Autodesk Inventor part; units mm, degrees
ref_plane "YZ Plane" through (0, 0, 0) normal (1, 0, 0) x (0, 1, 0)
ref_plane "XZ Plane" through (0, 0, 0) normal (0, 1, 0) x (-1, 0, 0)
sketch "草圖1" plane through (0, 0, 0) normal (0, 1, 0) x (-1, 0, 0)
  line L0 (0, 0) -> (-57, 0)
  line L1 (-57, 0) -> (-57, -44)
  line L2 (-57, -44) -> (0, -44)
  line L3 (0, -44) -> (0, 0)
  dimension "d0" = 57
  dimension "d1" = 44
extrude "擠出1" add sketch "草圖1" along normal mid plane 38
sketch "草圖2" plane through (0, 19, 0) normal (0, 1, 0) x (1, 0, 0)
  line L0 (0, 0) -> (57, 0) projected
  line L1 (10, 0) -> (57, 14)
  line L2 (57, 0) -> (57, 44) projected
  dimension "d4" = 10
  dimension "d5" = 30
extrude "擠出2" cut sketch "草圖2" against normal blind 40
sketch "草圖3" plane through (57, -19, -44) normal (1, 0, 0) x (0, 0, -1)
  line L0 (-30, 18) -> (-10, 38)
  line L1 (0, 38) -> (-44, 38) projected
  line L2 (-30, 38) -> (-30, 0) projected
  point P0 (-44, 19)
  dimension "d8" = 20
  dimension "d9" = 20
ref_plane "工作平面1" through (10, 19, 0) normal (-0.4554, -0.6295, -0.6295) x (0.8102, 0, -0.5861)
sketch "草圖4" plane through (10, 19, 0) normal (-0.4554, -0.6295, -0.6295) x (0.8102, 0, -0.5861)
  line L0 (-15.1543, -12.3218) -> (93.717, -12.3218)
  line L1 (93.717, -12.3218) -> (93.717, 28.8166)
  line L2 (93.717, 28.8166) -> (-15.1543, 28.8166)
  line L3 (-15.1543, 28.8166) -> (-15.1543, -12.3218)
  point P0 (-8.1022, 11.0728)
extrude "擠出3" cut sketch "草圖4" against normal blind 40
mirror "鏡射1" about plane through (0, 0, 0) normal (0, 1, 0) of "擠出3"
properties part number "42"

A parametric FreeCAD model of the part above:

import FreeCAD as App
import Part
import Sketcher

V = App.Vector

doc = App.newDocument("Part")
body = doc.addObject("PartDesign::Body", "Body")

# Sketch on XZ plane
sketch1 = body.newObject("Sketcher::SketchObject", "Sketch")
sketch1.AttachmentSupport = (doc.getObject("XZ_Plane"), [""])
sketch1.MapMode = "FlatFace"
sketch1.addGeometry([
    Part.LineSegment(V(0, -44, 0), V(0, 0, 0)),
    Part.LineSegment(V(0, 0, 0), V(57, 0, 0)),
    Part.LineSegment(V(57, 0, 0), V(57, -44, 0)),
    Part.LineSegment(V(57, -44, 0), V(0, -44, 0)),
], False)
sketch1.addConstraint([
    Sketcher.Constraint("Coincident", 0, 2, 1, 1),
    Sketcher.Constraint("Coincident", 1, 2, 2, 1),
    Sketcher.Constraint("Coincident", 2, 2, 3, 1),
    Sketcher.Constraint("Coincident", 3, 2, 0, 1),
    Sketcher.Constraint("Vertical", 0),
    Sketcher.Constraint("Horizontal", 1),
    Sketcher.Constraint("Vertical", 2),
    Sketcher.Constraint("Horizontal", 3),
    Sketcher.Constraint("Coincident", 0, 2, -1, 1),
    Sketcher.Constraint("DistanceX", 1, 1, 1, 2, 57.0),
    Sketcher.Constraint("DistanceY", 0, 1, 0, 2, 44.0),
])
pad1 = body.newObject("PartDesign::Pad", "Pad")
pad1.Profile = sketch1
pad1.Length = 38
pad1.Midplane = True

# Sketch on XZ plane
sketch2 = body.newObject("Sketcher::SketchObject", "Sketch001")
sketch2.AttachmentSupport = (doc.getObject("XZ_Plane"), [""])
sketch2.MapMode = "FlatFace"
sketch2.AttachmentOffset = App.Placement(V(0, 0, -19), App.Rotation())
sketch2.addGeometry([
    Part.LineSegment(V(57, -14, 0), V(10, 0, 0)),
    Part.LineSegment(V(10, 0, 0), V(57, 0, 0)),
    Part.LineSegment(V(57, 0, 0), V(57, -14, 0)),
], False)
sketch2.addConstraint([
    Sketcher.Constraint("Coincident", 0, 2, 1, 1),
    Sketcher.Constraint("Coincident", 1, 2, 2, 1),
    Sketcher.Constraint("Coincident", 2, 2, 0, 1),
    Sketcher.Constraint("Horizontal", 1),
    Sketcher.Constraint("Vertical", 2),
    Sketcher.Constraint("PointOnObject", 0, 2, -1),
    Sketcher.Constraint("DistanceX", -1, 1, 0, 2, 10.0),
    Sketcher.Constraint("DistanceX", 1, 1, 1, 2, 47.0),
    Sketcher.Constraint("DistanceY", 2, 2, 2, 1, 14.0),
])
pocket1 = body.newObject("PartDesign::Pocket", "Pocket")
pocket1.Profile = sketch2
pocket1.Length = 40
pocket1.Reversed = True

# Sketch on an angled plane
sketch3 = body.newObject("Sketcher::SketchObject", "Sketch002")
sketch3.Placement = App.Placement(V(10, 19, 0), App.Rotation(V(0.81021853, -0.000009525, -0.586127915), V(0.368974504, -0.776982544, 0.510054842), V(-0.455416017, -0.629522141, -0.629522141), "ZXY"))
sketch3.addGeometry([
    Part.LineSegment(V(-15, 29, 0), V(-15, -12, 0)),
    Part.LineSegment(V(-15, -12, 0), V(94, -12, 0)),
    Part.LineSegment(V(94, -12, 0), V(94, 29, 0)),
    Part.LineSegment(V(94, 29, 0), V(-15, 29, 0)),
], False)
sketch3.addConstraint([
    Sketcher.Constraint("Coincident", 0, 2, 1, 1),
    Sketcher.Constraint("Coincident", 1, 2, 2, 1),
    Sketcher.Constraint("Coincident", 2, 2, 3, 1),
    Sketcher.Constraint("Coincident", 3, 2, 0, 1),
    Sketcher.Constraint("Vertical", 0),
    Sketcher.Constraint("Horizontal", 1),
    Sketcher.Constraint("Vertical", 2),
    Sketcher.Constraint("Horizontal", 3),
    Sketcher.Constraint("DistanceX", 1, 1, 1, 2, 108.8713),
    Sketcher.Constraint("DistanceY", 0, 2, 0, 1, 41.1384),
    Sketcher.Constraint("DistanceX", -1, 1, 1, 2, 93.717),
    Sketcher.Constraint("DistanceY", 0, 2, -1, 1, 12.3218),
])
pocket2 = body.newObject("PartDesign::Pocket", "Pocket001")
pocket2.Profile = sketch3
pocket2.Length = 40
doc.recompute()

mirrored = body.newObject("PartDesign::Mirrored", "Mirrored")
mirrored.Originals = [pocket2]
mirrored.MirrorPlane = (doc.getObject("XZ_Plane"), [""])
body.Tip = mirrored

doc.recompute()
